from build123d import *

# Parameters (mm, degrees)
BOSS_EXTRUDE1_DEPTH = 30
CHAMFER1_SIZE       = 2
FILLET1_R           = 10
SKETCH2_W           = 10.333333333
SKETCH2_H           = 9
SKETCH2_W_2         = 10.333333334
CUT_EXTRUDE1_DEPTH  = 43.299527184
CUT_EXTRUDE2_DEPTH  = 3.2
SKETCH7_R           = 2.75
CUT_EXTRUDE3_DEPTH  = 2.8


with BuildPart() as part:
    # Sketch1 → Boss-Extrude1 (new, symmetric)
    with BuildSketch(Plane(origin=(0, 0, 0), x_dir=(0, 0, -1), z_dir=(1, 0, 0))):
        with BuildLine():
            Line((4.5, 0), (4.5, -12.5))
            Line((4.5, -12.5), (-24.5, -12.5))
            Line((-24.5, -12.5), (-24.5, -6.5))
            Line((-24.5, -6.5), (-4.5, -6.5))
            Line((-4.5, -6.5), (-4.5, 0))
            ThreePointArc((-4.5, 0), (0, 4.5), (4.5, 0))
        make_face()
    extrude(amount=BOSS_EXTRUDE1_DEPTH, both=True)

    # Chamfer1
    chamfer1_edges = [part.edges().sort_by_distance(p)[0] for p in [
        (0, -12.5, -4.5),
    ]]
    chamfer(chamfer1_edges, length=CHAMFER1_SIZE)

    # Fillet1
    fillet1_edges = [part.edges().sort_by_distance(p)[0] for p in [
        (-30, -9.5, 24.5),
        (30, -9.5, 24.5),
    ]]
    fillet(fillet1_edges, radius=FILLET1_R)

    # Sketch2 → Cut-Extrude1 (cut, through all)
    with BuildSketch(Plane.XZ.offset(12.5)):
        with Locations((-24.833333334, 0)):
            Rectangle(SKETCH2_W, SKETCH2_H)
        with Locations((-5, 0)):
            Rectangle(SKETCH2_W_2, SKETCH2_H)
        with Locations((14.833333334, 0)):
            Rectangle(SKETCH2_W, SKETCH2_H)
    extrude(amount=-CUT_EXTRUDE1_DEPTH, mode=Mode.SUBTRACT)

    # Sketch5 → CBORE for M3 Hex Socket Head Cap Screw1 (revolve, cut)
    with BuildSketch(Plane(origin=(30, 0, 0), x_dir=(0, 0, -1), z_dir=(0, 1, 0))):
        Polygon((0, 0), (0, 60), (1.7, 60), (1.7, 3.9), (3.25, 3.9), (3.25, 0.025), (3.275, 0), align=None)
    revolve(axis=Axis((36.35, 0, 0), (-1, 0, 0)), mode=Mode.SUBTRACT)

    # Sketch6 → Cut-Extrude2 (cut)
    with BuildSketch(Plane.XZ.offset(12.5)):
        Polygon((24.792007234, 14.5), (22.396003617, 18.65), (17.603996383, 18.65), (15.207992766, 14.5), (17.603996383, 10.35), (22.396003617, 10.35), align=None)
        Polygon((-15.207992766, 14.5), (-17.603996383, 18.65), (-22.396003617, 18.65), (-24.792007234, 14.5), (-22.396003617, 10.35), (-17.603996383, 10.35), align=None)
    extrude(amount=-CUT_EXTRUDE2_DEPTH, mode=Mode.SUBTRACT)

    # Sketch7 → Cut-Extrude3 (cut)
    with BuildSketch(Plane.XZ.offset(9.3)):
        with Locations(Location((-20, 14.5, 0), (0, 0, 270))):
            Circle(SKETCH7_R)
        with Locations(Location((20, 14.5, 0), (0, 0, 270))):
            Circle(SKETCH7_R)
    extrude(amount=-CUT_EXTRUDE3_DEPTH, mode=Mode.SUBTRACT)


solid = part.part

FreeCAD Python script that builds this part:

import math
import FreeCAD as App
import Part
import Sketcher
from FreeCAD import Vector
Q = App.Units.Quantity


def edges_at(feature, points):
    """Names of the edges that pass closest to the given points."""
    edges = feature.Shape.Edges
    near = lambda p: min(range(len(edges)), key=lambda i: edges[i].distToShape(Part.Vertex(*p))[0])
    return sorted({f"Edge{near(p) + 1}" for p in points})


def add_polygon(sketch, points):
    """Adds a closed chain of lines whose ends are joined by coincident constraints."""
    first, n = sketch.GeometryCount, len(points)
    for a, b in zip(points, points[1:] + points[:1]):
        sketch.addGeometry(Part.LineSegment(App.Vector(*a, 0), App.Vector(*b, 0)), False)
    for i in range(n):
        sketch.addConstraint(Sketcher.Constraint("Coincident", first + i, 2, first + (i + 1) % n, 1))

doc = App.newDocument("Part")
params = doc.addObject("Spreadsheet::Sheet", "Params")
for row, (alias, value) in enumerate([
    ("sketch1_radius", "4.5 mm"),
    ("sketch1_width", "6 mm"),
    ("sketch1_height", "20 mm"),
    ("sketch1_width2", "12.5 mm"),
    ("pad1_length", "60 mm"),
    ("chamfer_size", "2 mm"),
    ("fillet_radius", "10 mm"),
    ("sketch2_height", "9 mm"),
    ("sketch3_width", "60 mm"),
    ("sketch3_width2", "56.1 mm"),
    ("sketch3_height", "1.7 mm"),
    ("sketch3_height2", "1.55 mm"),
    ("groove_angle", "360 deg"),
    ("pocket2_length", "3.2 mm"),
    ("sketch5_diameter", "5.5 mm"),
    ("pocket3_length", "2.8 mm"),
], start=1):
    params.set(f"A{row}", alias)
    params.set(f"B{row}", "=" + value)
    params.setAlias(f"B{row}", alias)

body = doc.addObject("PartDesign::Body", "Body")

# Sketch on YZ plane
sketch1 = doc.addObject("Sketcher::SketchObject", "Sketch")
body.addObject(sketch1)
sketch1.AttachmentSupport = (doc.YZ_Plane, [""])
sketch1.MapMode = "FlatFace"
sketch1.addGeometry(Part.LineSegment(Vector(-12.5, -4.5, 0), Vector(0, -4.5, 0)), False)
sketch1.addGeometry(Part.ArcOfCircle(Part.Circle(Vector(0, 0, 0), Vector(0, 0, 1), 4.5), math.radians(-90), math.radians(90)), False)
sketch1.addGeometry(Part.LineSegment(Vector(0, 4.5, 0), Vector(-6.5, 4.5, 0)), False)
sketch1.addGeometry(Part.LineSegment(Vector(-6.5, 4.5, 0), Vector(-6.5, 24.5, 0)), False)
sketch1.addGeometry(Part.LineSegment(Vector(-6.5, 24.5, 0), Vector(-12.5, 24.5, 0)), False)
sketch1.addGeometry(Part.LineSegment(Vector(-12.5, 24.5, 0), Vector(-12.5, -4.5, 0)), False)
sketch1.addConstraint(Sketcher.Constraint("Tangent", 0, 2, 1, 1))
sketch1.addConstraint(Sketcher.Constraint("Tangent", 1, 2, 2, 1))
sketch1.addConstraint(Sketcher.Constraint("Coincident", 2, 2, 3, 1))
sketch1.addConstraint(Sketcher.Constraint("Coincident", 3, 2, 4, 1))
sketch1.addConstraint(Sketcher.Constraint("Coincident", 4, 2, 5, 1))
sketch1.addConstraint(Sketcher.Constraint("Coincident", 5, 2, 0, 1))
sketch1.addConstraint(Sketcher.Constraint("Horizontal", 0))
sketch1.addConstraint(Sketcher.Constraint("Horizontal", 2))
sketch1.addConstraint(Sketcher.Constraint("Vertical", 3))
sketch1.addConstraint(Sketcher.Constraint("Horizontal", 4))
sketch1.addConstraint(Sketcher.Constraint("Vertical", 5))
sketch1.addConstraint(Sketcher.Constraint("Coincident", 1, 3, -1, 1))
sketch1.addConstraint(Sketcher.Constraint("Radius", 1, 4.5))
sketch1.addConstraint(Sketcher.Constraint("DistanceX", 4, 2, 4, 1, 6.0))
sketch1.addConstraint(Sketcher.Constraint("DistanceY", 3, 1, 3, 2, 20.0))
sketch1.addConstraint(Sketcher.Constraint("DistanceX", 0, 1, 0, 2, 12.5))
sketch1.setExpression("Constraints[12]", "Params.sketch1_radius")
sketch1.setExpression("Constraints[13]", "Params.sketch1_width")
sketch1.setExpression("Constraints[14]", "Params.sketch1_height")
sketch1.setExpression("Constraints[15]", "Params.sketch1_width2")
pad1 = doc.addObject("PartDesign::Pad", "Pad")
body.addObject(pad1)
pad1.Profile = sketch1
pad1.setExpression("Length", "Params.pad1_length")
pad1.Midplane = True
doc.recompute()

chamfer = doc.addObject("PartDesign::Chamfer", "Chamfer")
body.addObject(chamfer)
chamfer.Base = (pad1, edges_at(pad1, [(0, -12.5, -4.5)]))
chamfer.setExpression("Size", "Params.chamfer_size")
doc.recompute()

fillet = doc.addObject("PartDesign::Fillet", "Fillet")
body.addObject(fillet)
fillet.Base = (chamfer, edges_at(chamfer, [(-30, -9.5, 24.5), (30, -9.5, 24.5)]))
fillet.setExpression("Radius", "Params.fillet_radius")

# Sketch on XZ plane
sketch2 = doc.addObject("Sketcher::SketchObject", "Sketch001")
body.addObject(sketch2)
sketch2.AttachmentSupport = (doc.XZ_Plane, [""])
sketch2.MapMode = "FlatFace"
sketch2.AttachmentOffset = App.Placement(Vector(0, 0, 12.5), App.Rotation())
add_polygon(sketch2, [(-30, 4), (-30, -4), (-20, -4), (-20, 4)])  # lines 0-3
add_polygon(sketch2, [(-10, 4), (-10, -4), (0, -4), (0, 4)])  # lines 4-7
add_polygon(sketch2, [(10, 4), (10, -4), (20, -4), (20, 4)])  # lines 8-11
sketch2.addConstraint(Sketcher.Constraint("Vertical", 0))
sketch2.addConstraint(Sketcher.Constraint("Horizontal", 1))
sketch2.addConstraint(Sketcher.Constraint("Vertical", 2))
sketch2.addConstraint(Sketcher.Constraint("Horizontal", 3))
sketch2.addConstraint(Sketcher.Constraint("Vertical", 4))
sketch2.addConstraint(Sketcher.Constraint("Horizontal", 5))
sketch2.addConstraint(Sketcher.Constraint("Vertical", 6))
sketch2.addConstraint(Sketcher.Constraint("Horizontal", 7))
sketch2.addConstraint(Sketcher.Constraint("Vertical", 8))
sketch2.addConstraint(Sketcher.Constraint("Horizontal", 9))
sketch2.addConstraint(Sketcher.Constraint("Vertical", 10))
sketch2.addConstraint(Sketcher.Constraint("Horizontal", 11))
sketch2.addConstraint(Sketcher.Constraint("Horizontal", 1, 2, 4, 2))
sketch2.addConstraint(Sketcher.Constraint("Horizontal", 3, 2, 6, 2))
sketch2.addConstraint(Sketcher.Constraint("Horizontal", 5, 2, 8, 2))
sketch2.addConstraint(Sketcher.Constraint("Horizontal", 7, 2, 10, 2))
sketch2.addConstraint(Sketcher.Constraint("Equal", 3, 5))
sketch2.addConstraint(Sketcher.Constraint("Equal", 7, 9))
sketch2.addConstraint(Sketcher.Constraint("DistanceY", 0, 2, 0, 1, 9.0))
sketch2.addConstraint(Sketcher.Constraint("DistanceX", 0, 2, -1, 1, 30.0))
sketch2.addConstraint(Sketcher.Constraint("DistanceX", -1, 1, 9, 2, 20.0))
sketch2.addConstraint(Sketcher.Constraint("DistanceY", 0, 2, -1, 1, 4.5))
sketch2.addConstraint(Sketcher.Constraint("DistanceX", 1, 2, 4, 2, 9.5))
sketch2.addConstraint(Sketcher.Constraint("DistanceX", 5, 2, 8, 2, 9.5))
sketch2.setExpression("Constraints[30]", "Params.sketch2_height")
pocket1 = doc.addObject("PartDesign::Pocket", "Pocket")
body.addObject(pocket1)
pocket1.Profile = sketch2
pocket1.Type = "ThroughAll"

# Sketch on XZ plane
sketch3 = doc.addObject("Sketcher::SketchObject", "Sketch002")
body.addObject(sketch3)
sketch3.AttachmentSupport = (doc.XZ_Plane, [""])
sketch3.MapMode = "FlatFace"
add_polygon(sketch3, [(-30, 0), (30, 0), (30, -3.275), (29.975, -3.25), (26.1, -3.25), (26.1, -1.7), (-30, -1.7)])  # lines 0-6
sketch3.addConstraint(Sketcher.Constraint("Horizontal", 0))
sketch3.addConstraint(Sketcher.Constraint("Vertical", 1))
sketch3.addConstraint(Sketcher.Constraint("Horizontal", 3))
sketch3.addConstraint(Sketcher.Constraint("Vertical", 4))
sketch3.addConstraint(Sketcher.Constraint("Horizontal", 5))
sketch3.addConstraint(Sketcher.Constraint("Vertical", 6))
sketch3.addConstraint(Sketcher.Constraint("Symmetric", 0, 2, 6, 2, -1, 1))
sketch3.addConstraint(Sketcher.Constraint("DistanceX", 0, 1, 0, 2, 60.0))
sketch3.addConstraint(Sketcher.Constraint("Angle", 2, Q("135 deg")))
sketch3.addConstraint(Sketcher.Constraint("DistanceX", 5, 2, 5, 1, 56.1))
sketch3.addConstraint(Sketcher.Constraint("DistanceY", 6, 1, 6, 2, 1.7))
sketch3.addConstraint(Sketcher.Constraint("DistanceY", 4, 1, 4, 2, 1.55))
sketch3.addConstraint(Sketcher.Constraint("DistanceX", 3, 2, 3, 1, 3.875))
sketch3.setExpression("Constraints[14]", "Params.sketch3_width")
sketch3.setExpression("Constraints[16]", "Params.sketch3_width2")
sketch3.setExpression("Constraints[17]", "Params.sketch3_height")
sketch3.setExpression("Constraints[18]", "Params.sketch3_height2")
groove = doc.addObject("PartDesign::Groove", "Groove")
body.addObject(groove)
groove.Profile = sketch3
groove.ReferenceAxis = (sketch3, ["H_Axis"])
groove.setExpression("Angle", "Params.groove_angle")

# Sketch on XZ plane
sketch4 = doc.addObject("Sketcher::SketchObject", "Sketch003")
body.addObject(sketch4)
sketch4.AttachmentSupport = (doc.XZ_Plane, [""])
sketch4.MapMode = "FlatFace"
sketch4.AttachmentOffset = App.Placement(Vector(0, 0, 12.5), App.Rotation())
add_polygon(sketch4, [(24.8, 14.5), (22.4, 18.6), (17.6, 18.6), (15.2, 14.5), (17.6, 10.3), (22.4, 10.3)])  # lines 0-5
add_polygon(sketch4, [(-15.2, 14.5), (-17.6, 18.6), (-22.4, 18.6), (-24.8, 14.5), (-22.4, 10.3), (-17.6, 10.3)])  # lines 6-11
sketch4.addConstraint(Sketcher.Constraint("Horizontal", 1))
sketch4.addConstraint(Sketcher.Constraint("Horizontal", 4))
sketch4.addConstraint(Sketcher.Constraint("Horizontal", 7))
sketch4.addConstraint(Sketcher.Constraint("Horizontal", 10))
sketch4.addConstraint(Sketcher.Constraint("Symmetric", 1, 2, 6, 2, -2))
sketch4.addConstraint(Sketcher.Constraint("Symmetric", 5, 2, 8, 2, -2))
sketch4.addConstraint(Sketcher.Constraint("Symmetric", 4, 2, 9, 2, -2))
sketch4.addConstraint(Sketcher.Constraint("Symmetric", 2, 2, 11, 2, -2))
sketch4.addConstraint(Sketcher.Constraint("Parallel", 0, 3))
sketch4.addConstraint(Sketcher.Constraint("Parallel", 2, 5))
sketch4.addConstraint(Sketcher.Constraint("Parallel", 3, 6))
sketch4.addConstraint(Sketcher.Constraint("Parallel", 5, 8))
sketch4.addConstraint(Sketcher.Constraint("Parallel", 8, 11))
sketch4.addConstraint(Sketcher.Constraint("Horizontal", 2, 2, 5, 2))
sketch4.addConstraint(Sketcher.Constraint("Vertical", 1, 2, 3, 2))
sketch4.addConstraint(Sketcher.Constraint("Angle", 0, Q("120 deg")))
sketch4.addConstraint(Sketcher.Constraint("DistanceX", 6, 2, 0, 2, 40.0))
sketch4.addConstraint(Sketcher.Constraint("DistanceY", -1, 1, 2, 2, 14.5))
sketch4.addConstraint(Sketcher.Constraint("DistanceY", 3, 2, 1, 2, 8.3))
sketch4.addConstraint(Sketcher.Constraint("DistanceX", 1, 2, 1, 1, 4.792007))
pocket2 = doc.addObject("PartDesign::Pocket", "Pocket001")
body.addObject(pocket2)
pocket2.Profile = sketch4
pocket2.setExpression("Length", "Params.pocket2_length")

# Sketch on XZ plane
sketch5 = doc.addObject("Sketcher::SketchObject", "Sketch004")
body.addObject(sketch5)
sketch5.AttachmentSupport = (doc.XZ_Plane, [""])
sketch5.MapMode = "FlatFace"
sketch5.AttachmentOffset = App.Placement(Vector(0, 0, 9.3), App.Rotation())
sketch5.addGeometry(Part.Circle(Vector(-20, 14.5, 0), Vector(0, 0, 1), 2.8), False)
sketch5.addGeometry(Part.Circle(Vector(20, 14.5, 0), Vector(0, 0, 1), 2.8), False)
sketch5.addConstraint(Sketcher.Constraint("Equal", 0, 1))
sketch5.addConstraint(Sketcher.Constraint("Symmetric", 0, 3, 1, 3, -2))
sketch5.addConstraint(Sketcher.Constraint("Diameter", 0, 5.5))
sketch5.addConstraint(Sketcher.Constraint("DistanceX", 0, 3, -1, 1, 20.0))
sketch5.addConstraint(Sketcher.Constraint("DistanceY", -1, 1, 0, 3, 14.5))
sketch5.setExpression("Constraints[2]", "Params.sketch5_diameter")
pocket3 = doc.addObject("PartDesign::Pocket", "Pocket002")
body.addObject(pocket3)
pocket3.Profile = sketch5
pocket3.setExpression("Length", "Params.pocket3_length")

doc.recompute()
